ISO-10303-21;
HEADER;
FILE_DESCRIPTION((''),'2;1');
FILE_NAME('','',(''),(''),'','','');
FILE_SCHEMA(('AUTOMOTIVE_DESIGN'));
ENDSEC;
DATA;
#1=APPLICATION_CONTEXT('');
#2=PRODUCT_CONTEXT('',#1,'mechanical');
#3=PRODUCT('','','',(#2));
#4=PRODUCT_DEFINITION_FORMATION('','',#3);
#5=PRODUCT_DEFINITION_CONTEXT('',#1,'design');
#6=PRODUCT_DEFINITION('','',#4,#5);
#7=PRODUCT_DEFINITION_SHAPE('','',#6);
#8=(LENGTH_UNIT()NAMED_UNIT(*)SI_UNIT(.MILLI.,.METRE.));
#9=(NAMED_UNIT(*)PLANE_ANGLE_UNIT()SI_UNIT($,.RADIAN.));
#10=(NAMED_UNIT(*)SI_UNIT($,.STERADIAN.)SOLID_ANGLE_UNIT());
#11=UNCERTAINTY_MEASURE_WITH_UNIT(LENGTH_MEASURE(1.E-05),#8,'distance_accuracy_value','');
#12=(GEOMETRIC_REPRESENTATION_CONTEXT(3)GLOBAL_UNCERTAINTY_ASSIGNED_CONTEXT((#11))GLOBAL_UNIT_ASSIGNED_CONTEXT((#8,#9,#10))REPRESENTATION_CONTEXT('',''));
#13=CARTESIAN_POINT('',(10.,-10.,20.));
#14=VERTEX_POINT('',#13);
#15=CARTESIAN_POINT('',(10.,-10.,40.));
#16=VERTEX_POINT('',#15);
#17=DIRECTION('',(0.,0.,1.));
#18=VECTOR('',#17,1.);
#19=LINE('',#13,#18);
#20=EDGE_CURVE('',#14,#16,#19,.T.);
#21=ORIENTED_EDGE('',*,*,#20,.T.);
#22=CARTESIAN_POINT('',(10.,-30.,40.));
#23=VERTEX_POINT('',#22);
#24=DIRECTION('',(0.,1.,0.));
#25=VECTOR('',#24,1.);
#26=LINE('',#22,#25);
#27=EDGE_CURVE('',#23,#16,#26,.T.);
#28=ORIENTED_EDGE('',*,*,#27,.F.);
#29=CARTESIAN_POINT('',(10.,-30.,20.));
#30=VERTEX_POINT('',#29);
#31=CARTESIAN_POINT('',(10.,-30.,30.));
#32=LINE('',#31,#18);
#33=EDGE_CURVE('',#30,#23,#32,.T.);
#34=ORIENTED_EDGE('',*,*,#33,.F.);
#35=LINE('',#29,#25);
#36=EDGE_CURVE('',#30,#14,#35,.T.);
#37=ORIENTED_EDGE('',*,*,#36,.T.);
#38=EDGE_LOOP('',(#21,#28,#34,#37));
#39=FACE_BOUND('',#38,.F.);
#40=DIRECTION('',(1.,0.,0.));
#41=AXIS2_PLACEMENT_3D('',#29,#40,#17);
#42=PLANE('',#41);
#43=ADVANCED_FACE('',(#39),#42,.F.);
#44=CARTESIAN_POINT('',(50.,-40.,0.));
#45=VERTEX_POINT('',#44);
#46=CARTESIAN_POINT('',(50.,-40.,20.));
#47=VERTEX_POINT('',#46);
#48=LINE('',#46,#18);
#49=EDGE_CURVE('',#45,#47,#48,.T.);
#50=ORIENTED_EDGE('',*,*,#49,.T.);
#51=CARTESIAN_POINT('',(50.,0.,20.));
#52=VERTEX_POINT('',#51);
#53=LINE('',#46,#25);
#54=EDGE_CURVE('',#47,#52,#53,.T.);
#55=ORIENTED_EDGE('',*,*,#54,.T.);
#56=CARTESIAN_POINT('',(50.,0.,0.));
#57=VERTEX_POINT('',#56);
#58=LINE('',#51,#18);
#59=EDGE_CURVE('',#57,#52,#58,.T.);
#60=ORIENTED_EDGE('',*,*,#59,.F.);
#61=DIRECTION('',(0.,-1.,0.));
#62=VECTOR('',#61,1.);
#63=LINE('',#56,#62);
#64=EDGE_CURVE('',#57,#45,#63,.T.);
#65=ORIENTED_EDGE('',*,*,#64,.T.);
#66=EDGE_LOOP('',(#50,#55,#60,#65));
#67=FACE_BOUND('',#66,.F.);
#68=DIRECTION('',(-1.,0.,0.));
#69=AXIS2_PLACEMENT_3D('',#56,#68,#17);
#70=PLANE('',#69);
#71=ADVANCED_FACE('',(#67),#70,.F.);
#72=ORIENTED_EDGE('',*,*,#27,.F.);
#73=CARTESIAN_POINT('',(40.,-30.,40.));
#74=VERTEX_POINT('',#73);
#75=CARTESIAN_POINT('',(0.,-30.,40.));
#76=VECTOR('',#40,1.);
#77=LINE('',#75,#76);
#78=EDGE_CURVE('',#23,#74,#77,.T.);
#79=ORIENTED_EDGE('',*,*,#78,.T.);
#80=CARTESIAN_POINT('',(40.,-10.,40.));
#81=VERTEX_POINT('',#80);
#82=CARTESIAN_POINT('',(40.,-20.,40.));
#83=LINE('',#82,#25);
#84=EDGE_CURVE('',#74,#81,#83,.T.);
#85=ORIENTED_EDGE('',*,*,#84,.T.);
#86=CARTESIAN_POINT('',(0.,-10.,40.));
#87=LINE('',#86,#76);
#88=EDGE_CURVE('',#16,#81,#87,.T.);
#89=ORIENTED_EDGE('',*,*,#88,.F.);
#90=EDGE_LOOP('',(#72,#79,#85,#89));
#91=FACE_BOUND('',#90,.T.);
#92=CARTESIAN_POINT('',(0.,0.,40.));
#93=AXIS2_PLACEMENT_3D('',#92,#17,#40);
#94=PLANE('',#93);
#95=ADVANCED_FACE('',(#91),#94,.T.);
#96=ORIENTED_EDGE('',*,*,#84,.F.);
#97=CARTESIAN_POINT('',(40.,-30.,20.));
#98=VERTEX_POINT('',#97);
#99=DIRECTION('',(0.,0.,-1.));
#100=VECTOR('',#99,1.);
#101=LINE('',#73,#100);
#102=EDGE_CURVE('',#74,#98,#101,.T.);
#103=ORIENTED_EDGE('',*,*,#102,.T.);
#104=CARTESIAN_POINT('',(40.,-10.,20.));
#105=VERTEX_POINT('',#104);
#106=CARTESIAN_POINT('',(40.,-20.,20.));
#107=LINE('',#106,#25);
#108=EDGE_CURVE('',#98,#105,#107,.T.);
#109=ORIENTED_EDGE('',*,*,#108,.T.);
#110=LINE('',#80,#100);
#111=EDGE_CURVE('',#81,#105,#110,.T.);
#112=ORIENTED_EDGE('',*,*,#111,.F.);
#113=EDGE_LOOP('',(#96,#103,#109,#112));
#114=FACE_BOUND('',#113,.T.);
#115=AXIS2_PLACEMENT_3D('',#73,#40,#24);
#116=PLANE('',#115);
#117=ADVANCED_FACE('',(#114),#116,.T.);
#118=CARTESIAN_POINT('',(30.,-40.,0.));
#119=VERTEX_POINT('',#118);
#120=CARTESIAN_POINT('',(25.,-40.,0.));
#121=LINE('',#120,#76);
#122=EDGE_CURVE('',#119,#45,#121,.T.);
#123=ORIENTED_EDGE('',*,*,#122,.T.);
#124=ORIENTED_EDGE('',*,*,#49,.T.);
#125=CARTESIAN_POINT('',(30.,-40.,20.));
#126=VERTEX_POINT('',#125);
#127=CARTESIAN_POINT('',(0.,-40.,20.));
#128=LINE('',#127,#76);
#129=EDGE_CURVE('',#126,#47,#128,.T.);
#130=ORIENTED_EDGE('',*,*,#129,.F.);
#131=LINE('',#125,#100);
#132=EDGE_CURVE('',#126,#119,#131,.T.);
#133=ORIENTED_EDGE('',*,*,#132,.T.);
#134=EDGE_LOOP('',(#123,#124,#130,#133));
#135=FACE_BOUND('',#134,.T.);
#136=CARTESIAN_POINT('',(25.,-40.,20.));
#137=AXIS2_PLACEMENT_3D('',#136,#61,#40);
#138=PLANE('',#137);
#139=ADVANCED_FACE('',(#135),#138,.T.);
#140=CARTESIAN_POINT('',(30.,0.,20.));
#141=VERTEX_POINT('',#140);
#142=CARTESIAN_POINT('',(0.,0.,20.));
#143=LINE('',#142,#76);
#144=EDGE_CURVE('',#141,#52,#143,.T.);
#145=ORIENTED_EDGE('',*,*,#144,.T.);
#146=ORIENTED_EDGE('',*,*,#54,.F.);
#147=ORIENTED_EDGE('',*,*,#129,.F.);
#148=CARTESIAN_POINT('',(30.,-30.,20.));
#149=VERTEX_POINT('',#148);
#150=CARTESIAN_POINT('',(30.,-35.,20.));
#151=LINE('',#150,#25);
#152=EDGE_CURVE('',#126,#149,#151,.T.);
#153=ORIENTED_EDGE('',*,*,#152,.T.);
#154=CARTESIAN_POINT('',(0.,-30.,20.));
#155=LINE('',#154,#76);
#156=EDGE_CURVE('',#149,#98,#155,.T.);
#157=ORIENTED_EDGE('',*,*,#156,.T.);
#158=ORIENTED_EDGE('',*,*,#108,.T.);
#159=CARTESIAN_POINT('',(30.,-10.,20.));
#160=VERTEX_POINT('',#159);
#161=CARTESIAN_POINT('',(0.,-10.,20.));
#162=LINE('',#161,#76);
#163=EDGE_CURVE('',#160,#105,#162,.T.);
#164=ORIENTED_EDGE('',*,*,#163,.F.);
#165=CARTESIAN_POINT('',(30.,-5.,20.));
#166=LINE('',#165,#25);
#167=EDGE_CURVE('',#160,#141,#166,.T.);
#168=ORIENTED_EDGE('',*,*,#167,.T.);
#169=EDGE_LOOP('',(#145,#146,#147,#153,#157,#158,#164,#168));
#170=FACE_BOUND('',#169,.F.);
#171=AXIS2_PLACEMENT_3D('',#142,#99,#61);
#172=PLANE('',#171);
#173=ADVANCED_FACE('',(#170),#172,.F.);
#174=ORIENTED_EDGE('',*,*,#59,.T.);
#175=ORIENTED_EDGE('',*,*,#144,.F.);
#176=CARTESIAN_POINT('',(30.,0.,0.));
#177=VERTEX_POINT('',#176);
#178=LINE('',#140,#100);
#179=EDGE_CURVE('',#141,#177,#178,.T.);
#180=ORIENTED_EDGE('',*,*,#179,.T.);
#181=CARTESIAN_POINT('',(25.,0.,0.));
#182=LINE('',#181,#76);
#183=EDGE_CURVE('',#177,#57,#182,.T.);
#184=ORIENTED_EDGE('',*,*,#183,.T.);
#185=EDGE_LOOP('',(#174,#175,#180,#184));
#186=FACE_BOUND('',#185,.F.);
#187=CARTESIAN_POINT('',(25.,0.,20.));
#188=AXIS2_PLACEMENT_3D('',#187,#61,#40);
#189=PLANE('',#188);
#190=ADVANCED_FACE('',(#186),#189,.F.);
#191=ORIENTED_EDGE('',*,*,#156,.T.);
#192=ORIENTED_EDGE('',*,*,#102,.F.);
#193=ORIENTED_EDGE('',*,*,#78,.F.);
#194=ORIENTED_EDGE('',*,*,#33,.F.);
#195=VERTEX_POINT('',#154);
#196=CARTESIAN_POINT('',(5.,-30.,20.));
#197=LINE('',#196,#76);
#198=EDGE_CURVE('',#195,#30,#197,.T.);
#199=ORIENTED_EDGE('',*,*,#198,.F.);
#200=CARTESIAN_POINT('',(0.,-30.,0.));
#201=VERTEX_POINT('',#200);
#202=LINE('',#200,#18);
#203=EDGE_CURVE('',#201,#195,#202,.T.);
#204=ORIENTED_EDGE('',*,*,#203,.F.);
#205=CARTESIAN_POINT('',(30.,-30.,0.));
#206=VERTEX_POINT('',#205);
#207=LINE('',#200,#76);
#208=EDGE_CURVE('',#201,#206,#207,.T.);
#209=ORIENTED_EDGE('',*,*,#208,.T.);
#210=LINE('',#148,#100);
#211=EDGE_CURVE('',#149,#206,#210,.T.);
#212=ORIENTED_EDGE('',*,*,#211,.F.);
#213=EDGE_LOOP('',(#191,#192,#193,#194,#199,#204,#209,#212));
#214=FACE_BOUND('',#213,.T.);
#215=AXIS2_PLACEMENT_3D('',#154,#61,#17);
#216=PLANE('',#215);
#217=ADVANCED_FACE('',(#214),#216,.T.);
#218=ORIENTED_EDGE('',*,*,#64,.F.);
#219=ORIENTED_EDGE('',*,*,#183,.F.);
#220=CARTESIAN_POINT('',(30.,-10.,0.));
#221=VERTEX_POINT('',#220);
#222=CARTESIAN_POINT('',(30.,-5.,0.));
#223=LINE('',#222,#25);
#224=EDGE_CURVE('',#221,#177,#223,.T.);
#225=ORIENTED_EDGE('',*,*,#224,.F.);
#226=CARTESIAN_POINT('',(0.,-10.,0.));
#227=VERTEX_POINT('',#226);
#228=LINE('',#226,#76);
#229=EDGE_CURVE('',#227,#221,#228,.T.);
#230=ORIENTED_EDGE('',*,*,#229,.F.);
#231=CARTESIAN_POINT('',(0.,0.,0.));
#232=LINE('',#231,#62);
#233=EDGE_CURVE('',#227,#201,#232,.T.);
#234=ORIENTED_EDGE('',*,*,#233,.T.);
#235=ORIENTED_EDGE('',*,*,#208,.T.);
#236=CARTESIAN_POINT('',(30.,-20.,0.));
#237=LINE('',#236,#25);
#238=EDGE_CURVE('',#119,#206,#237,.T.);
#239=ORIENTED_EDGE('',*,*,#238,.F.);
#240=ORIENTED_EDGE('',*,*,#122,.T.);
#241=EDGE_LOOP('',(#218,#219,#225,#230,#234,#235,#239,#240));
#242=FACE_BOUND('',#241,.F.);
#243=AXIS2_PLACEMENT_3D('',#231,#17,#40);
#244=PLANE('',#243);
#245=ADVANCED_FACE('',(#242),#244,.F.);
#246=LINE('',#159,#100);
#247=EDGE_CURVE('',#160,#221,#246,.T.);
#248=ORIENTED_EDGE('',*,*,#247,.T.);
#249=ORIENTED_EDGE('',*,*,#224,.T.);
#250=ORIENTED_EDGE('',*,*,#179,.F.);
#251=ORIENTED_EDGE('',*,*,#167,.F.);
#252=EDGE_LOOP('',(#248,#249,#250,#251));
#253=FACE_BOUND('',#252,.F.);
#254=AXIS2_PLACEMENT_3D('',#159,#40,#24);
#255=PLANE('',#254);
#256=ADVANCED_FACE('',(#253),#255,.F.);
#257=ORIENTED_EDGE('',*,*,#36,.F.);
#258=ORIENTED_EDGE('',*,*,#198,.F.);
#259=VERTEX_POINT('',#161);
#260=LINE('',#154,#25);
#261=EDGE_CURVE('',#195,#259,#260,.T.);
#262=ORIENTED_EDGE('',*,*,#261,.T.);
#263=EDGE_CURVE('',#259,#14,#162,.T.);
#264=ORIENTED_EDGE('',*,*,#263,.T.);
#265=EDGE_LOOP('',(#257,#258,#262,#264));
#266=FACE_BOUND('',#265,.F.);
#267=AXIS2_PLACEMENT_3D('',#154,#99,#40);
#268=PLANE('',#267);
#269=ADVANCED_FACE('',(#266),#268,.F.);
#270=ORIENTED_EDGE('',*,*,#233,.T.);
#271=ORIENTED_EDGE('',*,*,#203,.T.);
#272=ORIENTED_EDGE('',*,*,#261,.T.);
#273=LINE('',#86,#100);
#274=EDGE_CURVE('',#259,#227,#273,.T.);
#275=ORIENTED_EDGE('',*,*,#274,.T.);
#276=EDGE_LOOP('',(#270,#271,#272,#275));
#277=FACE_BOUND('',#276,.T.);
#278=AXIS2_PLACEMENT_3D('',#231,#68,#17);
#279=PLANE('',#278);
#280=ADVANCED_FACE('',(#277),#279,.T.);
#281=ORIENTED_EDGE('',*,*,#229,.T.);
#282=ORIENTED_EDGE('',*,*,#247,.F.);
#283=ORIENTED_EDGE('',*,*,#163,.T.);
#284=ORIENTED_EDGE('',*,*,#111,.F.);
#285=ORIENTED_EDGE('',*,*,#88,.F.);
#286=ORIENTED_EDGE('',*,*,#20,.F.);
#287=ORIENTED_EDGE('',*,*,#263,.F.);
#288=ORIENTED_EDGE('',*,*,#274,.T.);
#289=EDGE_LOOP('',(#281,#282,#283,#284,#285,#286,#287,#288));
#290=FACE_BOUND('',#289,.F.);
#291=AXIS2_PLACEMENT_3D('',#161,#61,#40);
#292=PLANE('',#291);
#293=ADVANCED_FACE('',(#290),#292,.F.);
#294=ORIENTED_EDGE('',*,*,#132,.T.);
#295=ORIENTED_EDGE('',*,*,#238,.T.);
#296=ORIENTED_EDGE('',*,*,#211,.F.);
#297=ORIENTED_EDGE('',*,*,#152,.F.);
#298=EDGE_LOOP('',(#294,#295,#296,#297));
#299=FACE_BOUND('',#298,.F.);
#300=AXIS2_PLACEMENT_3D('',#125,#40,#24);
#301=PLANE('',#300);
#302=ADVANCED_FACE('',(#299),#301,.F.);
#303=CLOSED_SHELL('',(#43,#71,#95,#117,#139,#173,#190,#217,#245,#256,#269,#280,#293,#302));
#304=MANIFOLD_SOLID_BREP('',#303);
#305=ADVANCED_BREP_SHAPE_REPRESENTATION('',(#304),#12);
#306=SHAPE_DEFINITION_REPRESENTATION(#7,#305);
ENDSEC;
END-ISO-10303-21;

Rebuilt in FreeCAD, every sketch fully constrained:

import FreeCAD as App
import Part
import Sketcher

V = App.Vector

doc = App.newDocument("Part")
body = doc.addObject("PartDesign::Body", "Body")

# Sketch on XZ plane
sketch1 = doc.addObject("Sketcher::SketchObject", "Sketch")
body.addObject(sketch1)
sketch1.AttachmentSupport = (doc.XZ_Plane, [""])
sketch1.MapMode = "FlatFace"
sketch1.addGeometry([
    Part.LineSegment(V(0, 40, 0), V(0, 0, 0)),
    Part.LineSegment(V(0, 0, 0), V(50, 0, 0)),
    Part.LineSegment(V(50, 0, 0), V(50, 40, 0)),
    Part.LineSegment(V(50, 40, 0), V(0, 40, 0)),
], False)
sketch1.addConstraint([
    Sketcher.Constraint("Coincident", 0, 2, 1, 1),
    Sketcher.Constraint("Coincident", 1, 2, 2, 1),
    Sketcher.Constraint("Coincident", 2, 2, 3, 1),
    Sketcher.Constraint("Coincident", 3, 2, 0, 1),
    Sketcher.Constraint("Vertical", 0),
    Sketcher.Constraint("Horizontal", 1),
    Sketcher.Constraint("Vertical", 2),
    Sketcher.Constraint("Horizontal", 3),
    Sketcher.Constraint("Coincident", 0, 2, -1, 1),
    Sketcher.Constraint("DistanceX", 1, 1, 1, 2, 50.0),
    Sketcher.Constraint("DistanceY", 0, 2, 0, 1, 40.0),
])
pad1 = doc.addObject("PartDesign::Pad", "Pad")
body.addObject(pad1)
pad1.Profile = sketch1
pad1.Length = 40

# Sketch on YZ plane
sketch2 = doc.addObject("Sketcher::SketchObject", "Sketch001")
body.addObject(sketch2)
sketch2.AttachmentSupport = (doc.YZ_Plane, [""])
sketch2.MapMode = "FlatFace"
sketch2.addGeometry([
    Part.LineSegment(V(0, 40, 0), V(0, 20, 0)),  # 0
    Part.LineSegment(V(0, 20, 0), V(-10, 20, 0)),  # 1
    Part.LineSegment(V(-10, 20, 0), V(-10, 40, 0)),  # 2
    Part.LineSegment(V(-10, 40, 0), V(0, 40, 0)),  # 3
    Part.LineSegment(V(-30, 40, 0), V(-30, 20, 0)),  # 4
    Part.LineSegment(V(-30, 20, 0), V(-40, 20, 0)),  # 5
    Part.LineSegment(V(-40, 20, 0), V(-40, 40, 0)),  # 6
    Part.LineSegment(V(-40, 40, 0), V(-30, 40, 0)),  # 7
], False)
sketch2.addConstraint([
    Sketcher.Constraint("Coincident", 0, 2, 1, 1),
    Sketcher.Constraint("Coincident", 1, 2, 2, 1),
    Sketcher.Constraint("Coincident", 2, 2, 3, 1),
    Sketcher.Constraint("Coincident", 3, 2, 0, 1),
    Sketcher.Constraint("Coincident", 4, 2, 5, 1),
    Sketcher.Constraint("Coincident", 5, 2, 6, 1),
    Sketcher.Constraint("Coincident", 6, 2, 7, 1),
    Sketcher.Constraint("Coincident", 7, 2, 4, 1),
    Sketcher.Constraint("Vertical", 0),
    Sketcher.Constraint("Horizontal", 1),
    Sketcher.Constraint("Vertical", 2),
    Sketcher.Constraint("Horizontal", 3),
    Sketcher.Constraint("Vertical", 4),
    Sketcher.Constraint("Horizontal", 5),
    Sketcher.Constraint("Vertical", 6),
    Sketcher.Constraint("Horizontal", 7),
    Sketcher.Constraint("PointOnObject", 0, 2, -2),
    Sketcher.Constraint("Horizontal", 1, 2, 4, 2),
    Sketcher.Constraint("Horizontal", 3, 2, 6, 2),
    Sketcher.Constraint("Equal", 3, 5),
    Sketcher.Constraint("DistanceX", 1, 2, 1, 1, 10.0),
    Sketcher.Constraint("DistanceY", 0, 2, 0, 1, 20.0),
    Sketcher.Constraint("DistanceY", -1, 1, 0, 2, 20.0),
    Sketcher.Constraint("DistanceX", 4, 2, -1, 1, 30.0),
])
pocket1 = doc.addObject("PartDesign::Pocket", "Pocket")
body.addObject(pocket1)
pocket1.Profile = sketch2
pocket1.Type = "ThroughAll"
pocket1.Reversed = True

# Sketch on XY plane
sketch3 = doc.addObject("Sketcher::SketchObject", "Sketch002")
body.addObject(sketch3)
sketch3.AttachmentSupport = (doc.XY_Plane, [""])
sketch3.MapMode = "FlatFace"
sketch3.AttachmentOffset = App.Placement(V(0, 0, 20), App.Rotation())
sketch3.addGeometry([
    Part.LineSegment(V(0, 0, 0), V(0, -10, 0)),  # 0
    Part.LineSegment(V(0, -10, 0), V(30, -10, 0)),  # 1
    Part.LineSegment(V(30, -10, 0), V(30, 0, 0)),  # 2
    Part.LineSegment(V(30, 0, 0), V(0, 0, 0)),  # 3
    Part.LineSegment(V(0, -30, 0), V(0, -40, 0)),  # 4
    Part.LineSegment(V(0, -40, 0), V(30, -40, 0)),  # 5
    Part.LineSegment(V(30, -40, 0), V(30, -30, 0)),  # 6
    Part.LineSegment(V(30, -30, 0), V(0, -30, 0)),  # 7
], False)
sketch3.addConstraint([
    Sketcher.Constraint("Coincident", 0, 2, 1, 1),
    Sketcher.Constraint("Coincident", 1, 2, 2, 1),
    Sketcher.Constraint("Coincident", 2, 2, 3, 1),
    Sketcher.Constraint("Coincident", 3, 2, 0, 1),
    Sketcher.Constraint("Coincident", 4, 2, 5, 1),
    Sketcher.Constraint("Coincident", 5, 2, 6, 1),
    Sketcher.Constraint("Coincident", 6, 2, 7, 1),
    Sketcher.Constraint("Coincident", 7, 2, 4, 1),
    Sketcher.Constraint("Vertical", 0),
    Sketcher.Constraint("Horizontal", 1),
    Sketcher.Constraint("Vertical", 2),
    Sketcher.Constraint("Horizontal", 3),
    Sketcher.Constraint("Vertical", 4),
    Sketcher.Constraint("Horizontal", 5),
    Sketcher.Constraint("Vertical", 6),
    Sketcher.Constraint("Horizontal", 7),
    Sketcher.Constraint("Coincident", 3, 2, -1, 1),
    Sketcher.Constraint("PointOnObject", 4, 2, -2),
    Sketcher.Constraint("Vertical", 2, 2, 5, 2),
    Sketcher.Constraint("Equal", 2, 4),
    Sketcher.Constraint("DistanceX", 1, 1, 1, 2, 30.0),
    Sketcher.Constraint("DistanceY", 0, 2, 0, 1, 10.0),
    Sketcher.Constraint("DistanceY", 4, 2, -1, 1, 40.0),
])
pocket2 = doc.addObject("PartDesign::Pocket", "Pocket001")
body.addObject(pocket2)
pocket2.Profile = sketch3
pocket2.Type = "ThroughAll"

# Sketch on XY plane
sketch4 = doc.addObject("Sketcher::SketchObject", "Sketch003")
body.addObject(sketch4)
sketch4.AttachmentSupport = (doc.XY_Plane, [""])
sketch4.MapMode = "FlatFace"
sketch4.AttachmentOffset = App.Placement(V(0, 0, 40), App.Rotation())
sketch4.addGeometry([
    Part.LineSegment(V(40, -10, 0), V(40, -30, 0)),
    Part.LineSegment(V(40, -30, 0), V(50, -30, 0)),
    Part.LineSegment(V(50, -30, 0), V(50, -10, 0)),
    Part.LineSegment(V(50, -10, 0), V(40, -10, 0)),
], False)
sketch4.addConstraint([
    Sketcher.Constraint("Coincident", 0, 2, 1, 1),
    Sketcher.Constraint("Coincident", 1, 2, 2, 1),
    Sketcher.Constraint("Coincident", 2, 2, 3, 1),
    Sketcher.Constraint("Coincident", 3, 2, 0, 1),
    Sketcher.Constraint("Vertical", 0),
    Sketcher.Constraint("Horizontal", 1),
    Sketcher.Constraint("Vertical", 2),
    Sketcher.Constraint("Horizontal", 3),
    Sketcher.Constraint("DistanceX", 1, 1, 1, 2, 10.0),
    Sketcher.Constraint("DistanceY", 0, 2, 0, 1, 20.0),
    Sketcher.Constraint("DistanceX", -1, 1, 0, 2, 40.0),
    Sketcher.Constraint("DistanceY", 0, 2, -1, 1, 30.0),
])
pocket3 = doc.addObject("PartDesign::Pocket", "Pocket002")
body.addObject(pocket3)
pocket3.Profile = sketch4
pocket3.Length = 20

# Sketch on XZ plane
sketch5 = doc.addObject("Sketcher::SketchObject", "Sketch004")
body.addObject(sketch5)
sketch5.AttachmentSupport = (doc.XZ_Plane, [""])
sketch5.MapMode = "FlatFace"
sketch5.AttachmentOffset = App.Placement(V(0, 0, 30), App.Rotation())
sketch5.addGeometry([
    Part.LineSegment(V(0, 40, 0), V(0, 20, 0)),
    Part.LineSegment(V(0, 20, 0), V(10, 20, 0)),
    Part.LineSegment(V(10, 20, 0), V(10, 40, 0)),
    Part.LineSegment(V(10, 40, 0), V(0, 40, 0)),
], False)
sketch5.addConstraint([
    Sketcher.Constraint("Coincident", 0, 2, 1, 1),
    Sketcher.Constraint("Coincident", 1, 2, 2, 1),
    Sketcher.Constraint("Coincident", 2, 2, 3, 1),
    Sketcher.Constraint("Coincident", 3, 2, 0, 1),
    Sketcher.Constraint("Vertical", 0),
    Sketcher.Constraint("Horizontal", 1),
    Sketcher.Constraint("Vertical", 2),
    Sketcher.Constraint("Horizontal", 3),
    Sketcher.Constraint("PointOnObject", 0, 2, -2),
    Sketcher.Constraint("DistanceX", 1, 1, 1, 2, 10.0),
    Sketcher.Constraint("DistanceY", 0, 2, 0, 1, 20.0),
    Sketcher.Constraint("DistanceY", -1, 1, 0, 2, 20.0),
])
pocket4 = doc.addObject("PartDesign::Pocket", "Pocket003")
body.addObject(pocket4)
pocket4.Profile = sketch5
pocket4.Type = "ThroughAll"

doc.recompute()
